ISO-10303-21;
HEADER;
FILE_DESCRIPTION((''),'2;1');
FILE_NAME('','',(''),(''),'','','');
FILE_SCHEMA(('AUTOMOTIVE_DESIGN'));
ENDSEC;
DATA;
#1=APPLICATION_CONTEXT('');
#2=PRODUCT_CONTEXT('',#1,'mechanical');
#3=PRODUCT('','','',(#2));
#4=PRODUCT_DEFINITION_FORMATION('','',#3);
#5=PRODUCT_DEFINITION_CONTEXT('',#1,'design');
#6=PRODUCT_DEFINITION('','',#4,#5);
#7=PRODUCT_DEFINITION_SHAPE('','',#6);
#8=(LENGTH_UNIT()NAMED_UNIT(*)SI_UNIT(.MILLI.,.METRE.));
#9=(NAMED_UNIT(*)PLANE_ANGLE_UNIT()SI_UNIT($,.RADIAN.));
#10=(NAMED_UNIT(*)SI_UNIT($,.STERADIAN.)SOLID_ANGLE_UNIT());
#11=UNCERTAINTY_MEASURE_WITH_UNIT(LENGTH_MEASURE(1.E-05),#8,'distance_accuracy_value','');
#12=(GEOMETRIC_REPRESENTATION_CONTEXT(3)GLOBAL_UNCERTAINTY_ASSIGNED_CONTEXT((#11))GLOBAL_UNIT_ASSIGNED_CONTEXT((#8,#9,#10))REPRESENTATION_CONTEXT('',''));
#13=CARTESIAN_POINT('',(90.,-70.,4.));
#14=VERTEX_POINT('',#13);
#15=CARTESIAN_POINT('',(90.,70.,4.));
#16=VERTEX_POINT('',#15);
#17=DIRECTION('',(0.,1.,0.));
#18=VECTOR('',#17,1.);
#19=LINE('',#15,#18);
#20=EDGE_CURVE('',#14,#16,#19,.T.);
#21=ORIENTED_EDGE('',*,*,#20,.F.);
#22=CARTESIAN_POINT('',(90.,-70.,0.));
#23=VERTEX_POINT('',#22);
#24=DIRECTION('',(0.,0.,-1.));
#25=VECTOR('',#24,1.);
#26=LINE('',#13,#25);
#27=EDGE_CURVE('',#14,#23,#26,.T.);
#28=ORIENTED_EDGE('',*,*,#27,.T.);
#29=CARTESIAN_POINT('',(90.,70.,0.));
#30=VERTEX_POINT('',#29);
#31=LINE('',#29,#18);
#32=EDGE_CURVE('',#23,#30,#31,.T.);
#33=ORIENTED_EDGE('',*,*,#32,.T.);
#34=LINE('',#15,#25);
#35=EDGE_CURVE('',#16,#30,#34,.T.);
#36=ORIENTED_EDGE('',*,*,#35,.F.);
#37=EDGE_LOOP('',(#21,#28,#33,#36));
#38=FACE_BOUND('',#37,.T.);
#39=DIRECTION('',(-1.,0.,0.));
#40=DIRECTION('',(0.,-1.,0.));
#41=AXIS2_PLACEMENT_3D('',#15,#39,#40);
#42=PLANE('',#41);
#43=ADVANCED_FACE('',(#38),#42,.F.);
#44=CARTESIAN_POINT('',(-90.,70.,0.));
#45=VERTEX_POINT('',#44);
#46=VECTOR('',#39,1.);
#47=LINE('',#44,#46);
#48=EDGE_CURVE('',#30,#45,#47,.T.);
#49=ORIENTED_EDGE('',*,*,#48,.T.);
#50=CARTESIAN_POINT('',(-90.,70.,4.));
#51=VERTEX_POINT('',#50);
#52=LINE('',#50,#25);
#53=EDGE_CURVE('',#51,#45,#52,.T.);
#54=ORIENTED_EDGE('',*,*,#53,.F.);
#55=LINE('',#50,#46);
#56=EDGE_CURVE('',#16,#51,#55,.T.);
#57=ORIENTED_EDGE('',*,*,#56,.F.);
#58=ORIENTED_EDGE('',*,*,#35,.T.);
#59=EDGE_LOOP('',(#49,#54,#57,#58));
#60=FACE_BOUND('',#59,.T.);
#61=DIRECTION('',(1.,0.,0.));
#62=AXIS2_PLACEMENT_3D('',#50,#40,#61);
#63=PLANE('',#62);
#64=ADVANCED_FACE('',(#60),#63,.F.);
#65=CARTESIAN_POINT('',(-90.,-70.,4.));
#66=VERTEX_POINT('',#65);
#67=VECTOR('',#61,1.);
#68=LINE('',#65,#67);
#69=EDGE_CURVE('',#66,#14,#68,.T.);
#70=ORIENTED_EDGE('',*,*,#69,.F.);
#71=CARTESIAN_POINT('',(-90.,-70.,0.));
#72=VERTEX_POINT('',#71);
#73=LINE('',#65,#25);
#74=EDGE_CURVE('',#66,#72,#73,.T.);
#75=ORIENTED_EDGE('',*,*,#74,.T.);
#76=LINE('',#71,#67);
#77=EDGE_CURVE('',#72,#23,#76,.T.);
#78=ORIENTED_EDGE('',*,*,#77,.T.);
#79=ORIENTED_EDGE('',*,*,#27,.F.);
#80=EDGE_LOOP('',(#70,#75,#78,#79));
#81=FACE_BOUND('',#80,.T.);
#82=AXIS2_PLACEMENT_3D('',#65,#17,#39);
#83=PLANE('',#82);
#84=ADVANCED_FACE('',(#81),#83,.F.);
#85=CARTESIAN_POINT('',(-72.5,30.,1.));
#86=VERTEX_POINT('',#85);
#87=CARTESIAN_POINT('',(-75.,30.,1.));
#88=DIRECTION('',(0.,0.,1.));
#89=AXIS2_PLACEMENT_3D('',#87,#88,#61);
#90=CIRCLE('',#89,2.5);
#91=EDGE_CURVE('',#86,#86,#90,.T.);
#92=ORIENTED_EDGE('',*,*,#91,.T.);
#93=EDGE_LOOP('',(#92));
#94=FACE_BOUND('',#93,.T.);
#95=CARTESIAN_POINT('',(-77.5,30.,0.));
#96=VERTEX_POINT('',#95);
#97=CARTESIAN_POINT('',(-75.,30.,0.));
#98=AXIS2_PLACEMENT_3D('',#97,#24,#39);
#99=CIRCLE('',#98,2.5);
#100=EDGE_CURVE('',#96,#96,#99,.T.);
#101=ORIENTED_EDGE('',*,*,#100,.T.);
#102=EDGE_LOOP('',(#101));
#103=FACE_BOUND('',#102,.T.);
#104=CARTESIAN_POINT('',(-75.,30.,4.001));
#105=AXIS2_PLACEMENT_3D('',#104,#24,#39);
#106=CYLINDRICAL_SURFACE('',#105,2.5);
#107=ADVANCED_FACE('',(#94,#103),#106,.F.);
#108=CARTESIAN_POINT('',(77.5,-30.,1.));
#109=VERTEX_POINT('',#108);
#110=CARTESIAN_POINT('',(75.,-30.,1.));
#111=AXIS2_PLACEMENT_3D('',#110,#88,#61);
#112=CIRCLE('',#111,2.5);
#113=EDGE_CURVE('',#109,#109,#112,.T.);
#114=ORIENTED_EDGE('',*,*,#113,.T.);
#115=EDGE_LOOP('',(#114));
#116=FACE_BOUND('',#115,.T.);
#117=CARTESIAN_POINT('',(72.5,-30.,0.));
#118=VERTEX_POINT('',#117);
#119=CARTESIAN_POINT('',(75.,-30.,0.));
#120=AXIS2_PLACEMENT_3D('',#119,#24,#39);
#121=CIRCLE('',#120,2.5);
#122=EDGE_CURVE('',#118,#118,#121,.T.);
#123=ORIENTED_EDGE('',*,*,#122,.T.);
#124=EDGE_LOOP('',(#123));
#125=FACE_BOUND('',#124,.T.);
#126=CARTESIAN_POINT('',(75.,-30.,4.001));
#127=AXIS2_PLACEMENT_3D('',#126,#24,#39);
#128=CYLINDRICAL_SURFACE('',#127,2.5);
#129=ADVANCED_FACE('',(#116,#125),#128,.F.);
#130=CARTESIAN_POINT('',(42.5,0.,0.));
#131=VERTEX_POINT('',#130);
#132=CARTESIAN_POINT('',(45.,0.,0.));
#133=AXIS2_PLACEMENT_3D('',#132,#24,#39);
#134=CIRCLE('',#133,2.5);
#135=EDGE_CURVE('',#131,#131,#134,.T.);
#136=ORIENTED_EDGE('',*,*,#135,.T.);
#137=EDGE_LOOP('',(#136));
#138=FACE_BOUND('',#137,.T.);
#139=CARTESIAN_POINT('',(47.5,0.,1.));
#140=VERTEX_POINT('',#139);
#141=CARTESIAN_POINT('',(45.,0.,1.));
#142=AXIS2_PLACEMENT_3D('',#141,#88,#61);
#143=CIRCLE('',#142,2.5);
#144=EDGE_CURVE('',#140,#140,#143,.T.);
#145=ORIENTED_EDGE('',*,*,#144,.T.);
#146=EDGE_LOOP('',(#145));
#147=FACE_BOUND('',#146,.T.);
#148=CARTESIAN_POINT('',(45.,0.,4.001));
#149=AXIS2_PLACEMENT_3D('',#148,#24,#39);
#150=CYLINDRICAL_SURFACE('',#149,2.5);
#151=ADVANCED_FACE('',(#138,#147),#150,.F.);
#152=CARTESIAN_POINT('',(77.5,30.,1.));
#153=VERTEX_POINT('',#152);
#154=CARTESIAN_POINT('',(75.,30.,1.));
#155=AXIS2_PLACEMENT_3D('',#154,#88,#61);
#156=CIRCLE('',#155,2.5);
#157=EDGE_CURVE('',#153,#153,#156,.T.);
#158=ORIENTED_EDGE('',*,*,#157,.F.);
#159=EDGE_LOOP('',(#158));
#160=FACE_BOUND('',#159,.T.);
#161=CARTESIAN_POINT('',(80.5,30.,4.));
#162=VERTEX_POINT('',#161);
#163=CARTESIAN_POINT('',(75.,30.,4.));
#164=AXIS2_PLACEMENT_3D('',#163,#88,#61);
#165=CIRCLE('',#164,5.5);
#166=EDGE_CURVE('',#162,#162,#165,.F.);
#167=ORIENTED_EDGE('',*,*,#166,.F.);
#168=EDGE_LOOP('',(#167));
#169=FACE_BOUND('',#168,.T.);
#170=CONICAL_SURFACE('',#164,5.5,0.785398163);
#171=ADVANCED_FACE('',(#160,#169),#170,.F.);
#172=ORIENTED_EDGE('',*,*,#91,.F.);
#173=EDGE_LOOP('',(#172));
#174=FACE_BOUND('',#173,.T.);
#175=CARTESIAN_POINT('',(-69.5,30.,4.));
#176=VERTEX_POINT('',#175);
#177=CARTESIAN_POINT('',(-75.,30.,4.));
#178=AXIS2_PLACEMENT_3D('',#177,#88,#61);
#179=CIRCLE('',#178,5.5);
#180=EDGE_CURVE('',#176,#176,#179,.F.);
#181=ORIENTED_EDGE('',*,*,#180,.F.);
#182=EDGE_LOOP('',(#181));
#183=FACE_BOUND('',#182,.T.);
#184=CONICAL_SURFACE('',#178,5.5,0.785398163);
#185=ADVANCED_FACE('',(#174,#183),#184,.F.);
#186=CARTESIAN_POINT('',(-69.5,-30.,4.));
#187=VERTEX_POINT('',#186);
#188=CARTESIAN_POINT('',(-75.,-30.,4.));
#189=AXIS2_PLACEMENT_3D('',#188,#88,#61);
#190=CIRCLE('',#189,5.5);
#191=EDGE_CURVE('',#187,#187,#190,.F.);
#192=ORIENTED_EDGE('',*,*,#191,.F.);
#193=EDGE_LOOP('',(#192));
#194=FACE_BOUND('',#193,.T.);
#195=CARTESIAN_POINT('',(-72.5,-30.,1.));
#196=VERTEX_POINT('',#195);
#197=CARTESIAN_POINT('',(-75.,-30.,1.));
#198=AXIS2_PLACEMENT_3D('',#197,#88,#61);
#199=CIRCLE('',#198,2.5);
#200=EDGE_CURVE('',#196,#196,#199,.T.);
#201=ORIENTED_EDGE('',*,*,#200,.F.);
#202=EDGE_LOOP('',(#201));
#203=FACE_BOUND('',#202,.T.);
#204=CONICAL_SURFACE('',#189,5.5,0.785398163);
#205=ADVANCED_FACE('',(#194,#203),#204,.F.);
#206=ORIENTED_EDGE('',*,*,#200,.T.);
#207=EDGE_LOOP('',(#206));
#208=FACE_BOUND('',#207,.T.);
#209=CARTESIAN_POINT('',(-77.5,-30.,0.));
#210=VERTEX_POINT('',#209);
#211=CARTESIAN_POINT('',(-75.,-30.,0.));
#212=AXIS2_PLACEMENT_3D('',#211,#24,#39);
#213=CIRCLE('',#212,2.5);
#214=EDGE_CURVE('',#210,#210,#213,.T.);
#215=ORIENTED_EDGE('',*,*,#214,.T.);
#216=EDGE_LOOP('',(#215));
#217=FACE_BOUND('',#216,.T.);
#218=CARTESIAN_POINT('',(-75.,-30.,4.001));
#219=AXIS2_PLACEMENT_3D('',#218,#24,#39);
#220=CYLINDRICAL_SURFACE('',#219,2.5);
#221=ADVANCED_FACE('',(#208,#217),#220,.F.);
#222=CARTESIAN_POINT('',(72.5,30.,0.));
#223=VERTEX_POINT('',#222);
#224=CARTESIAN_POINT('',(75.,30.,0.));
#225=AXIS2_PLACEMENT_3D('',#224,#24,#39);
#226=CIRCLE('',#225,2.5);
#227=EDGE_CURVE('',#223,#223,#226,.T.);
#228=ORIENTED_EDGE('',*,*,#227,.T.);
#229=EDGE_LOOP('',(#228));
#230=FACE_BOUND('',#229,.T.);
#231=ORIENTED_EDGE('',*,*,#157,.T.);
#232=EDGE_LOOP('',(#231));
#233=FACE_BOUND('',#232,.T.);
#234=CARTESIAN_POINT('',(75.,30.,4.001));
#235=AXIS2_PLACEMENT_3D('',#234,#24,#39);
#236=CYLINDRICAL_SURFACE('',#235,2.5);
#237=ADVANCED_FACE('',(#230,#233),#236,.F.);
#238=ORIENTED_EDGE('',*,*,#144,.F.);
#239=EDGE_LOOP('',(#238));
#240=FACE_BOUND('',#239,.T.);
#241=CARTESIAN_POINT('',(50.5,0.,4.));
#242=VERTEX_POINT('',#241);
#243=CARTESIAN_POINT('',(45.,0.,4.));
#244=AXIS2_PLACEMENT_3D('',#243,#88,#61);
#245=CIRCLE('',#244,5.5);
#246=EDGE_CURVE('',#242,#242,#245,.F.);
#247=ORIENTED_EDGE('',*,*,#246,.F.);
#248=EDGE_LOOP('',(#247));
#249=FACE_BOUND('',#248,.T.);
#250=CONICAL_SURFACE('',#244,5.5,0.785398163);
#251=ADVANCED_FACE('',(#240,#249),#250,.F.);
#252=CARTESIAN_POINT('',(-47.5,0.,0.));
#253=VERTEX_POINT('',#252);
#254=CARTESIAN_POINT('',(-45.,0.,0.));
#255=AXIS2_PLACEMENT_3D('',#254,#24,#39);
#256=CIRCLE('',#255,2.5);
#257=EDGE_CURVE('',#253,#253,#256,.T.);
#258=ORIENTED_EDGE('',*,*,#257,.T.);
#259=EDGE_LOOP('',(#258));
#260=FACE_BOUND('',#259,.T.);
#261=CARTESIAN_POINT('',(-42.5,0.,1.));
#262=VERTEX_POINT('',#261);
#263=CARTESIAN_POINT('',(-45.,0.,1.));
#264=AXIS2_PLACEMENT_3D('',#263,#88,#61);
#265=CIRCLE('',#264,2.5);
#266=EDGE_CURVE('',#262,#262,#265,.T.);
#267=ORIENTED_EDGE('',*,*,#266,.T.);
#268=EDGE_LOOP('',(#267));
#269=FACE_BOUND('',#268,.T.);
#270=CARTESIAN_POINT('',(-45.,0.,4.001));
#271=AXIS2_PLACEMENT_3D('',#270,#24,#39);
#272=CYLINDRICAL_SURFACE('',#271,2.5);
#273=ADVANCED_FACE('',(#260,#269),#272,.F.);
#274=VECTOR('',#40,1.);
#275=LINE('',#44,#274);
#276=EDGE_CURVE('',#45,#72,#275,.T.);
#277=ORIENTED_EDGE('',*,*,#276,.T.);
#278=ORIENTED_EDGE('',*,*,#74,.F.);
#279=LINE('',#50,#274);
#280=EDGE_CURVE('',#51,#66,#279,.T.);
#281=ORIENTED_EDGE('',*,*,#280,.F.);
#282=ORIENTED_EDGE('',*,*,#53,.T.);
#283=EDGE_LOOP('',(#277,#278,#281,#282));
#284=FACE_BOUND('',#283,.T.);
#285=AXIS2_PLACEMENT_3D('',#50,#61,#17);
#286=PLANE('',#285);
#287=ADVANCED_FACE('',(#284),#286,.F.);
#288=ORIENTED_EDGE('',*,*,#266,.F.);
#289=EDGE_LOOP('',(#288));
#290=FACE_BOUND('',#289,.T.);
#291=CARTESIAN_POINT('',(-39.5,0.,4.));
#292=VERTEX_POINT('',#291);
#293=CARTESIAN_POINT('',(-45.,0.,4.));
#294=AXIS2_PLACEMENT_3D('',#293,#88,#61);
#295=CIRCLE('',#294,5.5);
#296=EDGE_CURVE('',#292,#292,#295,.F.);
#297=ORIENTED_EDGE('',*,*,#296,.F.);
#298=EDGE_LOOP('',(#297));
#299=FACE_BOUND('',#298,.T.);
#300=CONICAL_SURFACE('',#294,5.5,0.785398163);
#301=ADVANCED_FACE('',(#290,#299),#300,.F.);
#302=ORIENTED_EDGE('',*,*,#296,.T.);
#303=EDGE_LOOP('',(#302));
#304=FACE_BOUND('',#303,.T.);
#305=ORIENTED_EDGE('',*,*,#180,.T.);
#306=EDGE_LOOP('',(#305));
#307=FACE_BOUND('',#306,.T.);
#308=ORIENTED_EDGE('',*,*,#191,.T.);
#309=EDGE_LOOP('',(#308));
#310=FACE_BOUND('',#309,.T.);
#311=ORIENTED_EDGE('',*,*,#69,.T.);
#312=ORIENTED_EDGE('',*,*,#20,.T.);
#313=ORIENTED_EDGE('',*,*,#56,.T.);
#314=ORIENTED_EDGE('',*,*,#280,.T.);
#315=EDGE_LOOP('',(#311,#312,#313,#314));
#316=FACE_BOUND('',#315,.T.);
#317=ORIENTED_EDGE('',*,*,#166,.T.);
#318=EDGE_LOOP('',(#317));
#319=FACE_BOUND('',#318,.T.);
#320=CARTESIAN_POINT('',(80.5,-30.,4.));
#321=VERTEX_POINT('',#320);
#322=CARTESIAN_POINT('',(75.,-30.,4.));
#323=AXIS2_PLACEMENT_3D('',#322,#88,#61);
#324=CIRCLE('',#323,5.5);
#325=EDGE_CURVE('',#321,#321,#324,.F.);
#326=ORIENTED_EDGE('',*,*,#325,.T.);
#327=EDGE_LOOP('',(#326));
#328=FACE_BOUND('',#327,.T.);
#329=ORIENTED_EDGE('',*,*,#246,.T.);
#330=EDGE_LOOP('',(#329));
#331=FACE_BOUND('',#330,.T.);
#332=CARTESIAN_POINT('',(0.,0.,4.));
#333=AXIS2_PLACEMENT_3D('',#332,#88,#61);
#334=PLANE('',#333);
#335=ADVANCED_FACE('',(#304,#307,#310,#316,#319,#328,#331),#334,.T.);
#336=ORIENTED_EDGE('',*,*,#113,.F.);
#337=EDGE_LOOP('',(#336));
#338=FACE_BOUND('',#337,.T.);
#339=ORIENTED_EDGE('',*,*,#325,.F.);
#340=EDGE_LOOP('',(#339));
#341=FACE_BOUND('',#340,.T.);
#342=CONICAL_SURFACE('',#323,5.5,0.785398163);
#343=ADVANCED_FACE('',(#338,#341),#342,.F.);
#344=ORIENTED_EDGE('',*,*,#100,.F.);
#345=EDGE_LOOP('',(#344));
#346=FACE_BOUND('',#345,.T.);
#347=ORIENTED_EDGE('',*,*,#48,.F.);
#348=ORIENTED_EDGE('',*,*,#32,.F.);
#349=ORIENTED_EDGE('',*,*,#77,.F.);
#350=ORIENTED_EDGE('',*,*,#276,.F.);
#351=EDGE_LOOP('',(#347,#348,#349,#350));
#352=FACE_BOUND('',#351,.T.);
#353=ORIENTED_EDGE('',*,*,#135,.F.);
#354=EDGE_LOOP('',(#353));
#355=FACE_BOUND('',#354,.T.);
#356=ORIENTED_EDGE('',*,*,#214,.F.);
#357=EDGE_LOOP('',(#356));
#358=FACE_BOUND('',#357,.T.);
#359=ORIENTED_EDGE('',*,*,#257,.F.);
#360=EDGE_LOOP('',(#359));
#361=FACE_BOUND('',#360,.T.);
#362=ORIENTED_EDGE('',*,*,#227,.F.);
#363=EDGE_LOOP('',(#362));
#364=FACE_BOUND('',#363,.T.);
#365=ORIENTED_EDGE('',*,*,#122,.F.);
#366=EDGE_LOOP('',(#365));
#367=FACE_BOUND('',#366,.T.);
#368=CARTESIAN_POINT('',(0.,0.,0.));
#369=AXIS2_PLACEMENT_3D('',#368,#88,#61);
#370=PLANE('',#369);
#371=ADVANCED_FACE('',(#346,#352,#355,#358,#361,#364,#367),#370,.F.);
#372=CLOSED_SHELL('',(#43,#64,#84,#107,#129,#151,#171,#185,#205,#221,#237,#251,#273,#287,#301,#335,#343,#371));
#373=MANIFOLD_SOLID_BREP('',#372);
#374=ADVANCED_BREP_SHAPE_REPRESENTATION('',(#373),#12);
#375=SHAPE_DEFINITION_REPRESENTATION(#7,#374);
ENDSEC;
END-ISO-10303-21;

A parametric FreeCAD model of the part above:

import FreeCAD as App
import Part
import Sketcher
from FreeCAD import Vector
Q = App.Units.Quantity


def edges_at(feature, points):
    """Names of the edges that pass closest to the given points."""
    edges = feature.Shape.Edges
    near = lambda p: min(range(len(edges)), key=lambda i: edges[i].distToShape(Part.Vertex(*p))[0])
    return sorted({f"Edge{near(p) + 1}" for p in points})

doc = App.newDocument("Part")
params = doc.addObject("Spreadsheet::Sheet", "Params")
for row, (alias, value) in enumerate([
    ("sketch1_width", "180 mm"),
    ("sketch1_height", "140 mm"),
    ("pad1_length", "4 mm"),
    ("sketch2_diameter", "5 mm"),
    ("sketch3_diameter", "5 mm"),
    ("sketch4_diameter", "5 mm"),
    ("sketch5_diameter", "5 mm"),
    ("sketch6_diameter", "5 mm"),
    ("sketch7_diameter", "5 mm"),
    ("chamfer_size", "3 mm"),
], start=1):
    params.set(f"A{row}", alias)
    params.set(f"B{row}", "=" + value)
    params.setAlias(f"B{row}", alias)

body = doc.addObject("PartDesign::Body", "Body")

# Sketch on XY plane
sketch1 = body.newObject("Sketcher::SketchObject", "Sketch")
sketch1.AttachmentSupport = (doc.getObject("XY_Plane"), [""])
sketch1.MapMode = "FlatFace"
sketch1.addGeometry([
    Part.LineSegment(Vector(-90, 70, 0), Vector(-90, -70, 0)),
    Part.LineSegment(Vector(-90, -70, 0), Vector(90, -70, 0)),
    Part.LineSegment(Vector(90, -70, 0), Vector(90, 70, 0)),
    Part.LineSegment(Vector(90, 70, 0), Vector(-90, 70, 0)),
], False)
sketch1.addConstraint([
    Sketcher.Constraint("Coincident", 0, 2, 1, 1),
    Sketcher.Constraint("Coincident", 1, 2, 2, 1),
    Sketcher.Constraint("Coincident", 2, 2, 3, 1),
    Sketcher.Constraint("Coincident", 3, 2, 0, 1),
    Sketcher.Constraint("Vertical", 0),
    Sketcher.Constraint("Horizontal", 1),
    Sketcher.Constraint("Vertical", 2),
    Sketcher.Constraint("Horizontal", 3),
    Sketcher.Constraint("Symmetric", 0, 2, 2, 2, -1, 1),
    Sketcher.Constraint("DistanceX", 1, 1, 1, 2, Q("180 mm")),
    Sketcher.Constraint("DistanceY", 0, 2, 0, 1, Q("140 mm")),
])
sketch1.setExpression("Constraints[9]", "Params.sketch1_width")
sketch1.setExpression("Constraints[10]", "Params.sketch1_height")
pad1 = body.newObject("PartDesign::Pad", "Pad")
pad1.Profile = sketch1
pad1.setExpression("Length", "Params.pad1_length")

# Sketch on XY plane
sketch2 = body.newObject("Sketcher::SketchObject", "Sketch001")
sketch2.AttachmentSupport = (doc.getObject("XY_Plane"), [""])
sketch2.MapMode = "FlatFace"
sketch2.addGeometry(Part.Circle(Vector(75, 30, 0), Vector(0, 0, 1), 2.5), False)
sketch2.addConstraint([
    Sketcher.Constraint("Diameter", 0, Q("5 mm")),
    Sketcher.Constraint("DistanceX", -1, 1, 0, 3, Q("75 mm")),
    Sketcher.Constraint("DistanceY", -1, 1, 0, 3, Q("30 mm")),
])
sketch2.setExpression("Constraints[0]", "Params.sketch2_diameter")
pocket1 = body.newObject("PartDesign::Pocket", "Pocket")
pocket1.Profile = sketch2
pocket1.Type = "UpToFirst"
pocket1.Reversed = True

# Sketch on XY plane
sketch3 = body.newObject("Sketcher::SketchObject", "Sketch002")
sketch3.AttachmentSupport = (doc.getObject("XY_Plane"), [""])
sketch3.MapMode = "FlatFace"
sketch3.addGeometry(Part.Circle(Vector(75, -30, 0), Vector(0, 0, 1), 2.5), False)
sketch3.addConstraint([
    Sketcher.Constraint("Diameter", 0, Q("5 mm")),
    Sketcher.Constraint("DistanceX", -1, 1, 0, 3, Q("75 mm")),
    Sketcher.Constraint("DistanceY", 0, 3, -1, 1, Q("30 mm")),
])
sketch3.setExpression("Constraints[0]", "Params.sketch3_diameter")
pocket2 = body.newObject("PartDesign::Pocket", "Pocket001")
pocket2.Profile = sketch3
pocket2.Type = "UpToFirst"
pocket2.Reversed = True

# Sketch on XY plane
sketch4 = body.newObject("Sketcher::SketchObject", "Sketch003")
sketch4.AttachmentSupport = (doc.getObject("XY_Plane"), [""])
sketch4.MapMode = "FlatFace"
sketch4.addGeometry(Part.Circle(Vector(-75, -30, 0), Vector(0, 0, 1), 2.5), False)
sketch4.addConstraint([
    Sketcher.Constraint("Diameter", 0, Q("5 mm")),
    Sketcher.Constraint("DistanceX", 0, 3, -1, 1, Q("75 mm")),
    Sketcher.Constraint("DistanceY", 0, 3, -1, 1, Q("30 mm")),
])
sketch4.setExpression("Constraints[0]", "Params.sketch4_diameter")
pocket3 = body.newObject("PartDesign::Pocket", "Pocket002")
pocket3.Profile = sketch4
pocket3.Type = "UpToFirst"
pocket3.Reversed = True

# Sketch on XY plane
sketch5 = body.newObject("Sketcher::SketchObject", "Sketch004")
sketch5.AttachmentSupport = (doc.getObject("XY_Plane"), [""])
sketch5.MapMode = "FlatFace"
sketch5.addGeometry(Part.Circle(Vector(-75, 30, 0), Vector(0, 0, 1), 2.5), False)
sketch5.addConstraint([
    Sketcher.Constraint("Diameter", 0, Q("5 mm")),
    Sketcher.Constraint("DistanceX", 0, 3, -1, 1, Q("75 mm")),
    Sketcher.Constraint("DistanceY", -1, 1, 0, 3, Q("30 mm")),
])
sketch5.setExpression("Constraints[0]", "Params.sketch5_diameter")
pocket4 = body.newObject("PartDesign::Pocket", "Pocket003")
pocket4.Profile = sketch5
pocket4.Type = "UpToFirst"
pocket4.Reversed = True

# Sketch on XY plane
sketch6 = body.newObject("Sketcher::SketchObject", "Sketch005")
sketch6.AttachmentSupport = (doc.getObject("XY_Plane"), [""])
sketch6.MapMode = "FlatFace"
sketch6.addGeometry(Part.Circle(Vector(-45, 0, 0), Vector(0, 0, 1), 2.5), False)
sketch6.addConstraint([
    Sketcher.Constraint("PointOnObject", 0, 3, -1),
    Sketcher.Constraint("Diameter", 0, Q("5 mm")),
    Sketcher.Constraint("DistanceX", 0, 3, -1, 1, Q("45 mm")),
])
sketch6.setExpression("Constraints[1]", "Params.sketch6_diameter")
pocket5 = body.newObject("PartDesign::Pocket", "Pocket004")
pocket5.Profile = sketch6
pocket5.Type = "UpToFirst"
pocket5.Reversed = True

# Sketch on XY plane
sketch7 = body.newObject("Sketcher::SketchObject", "Sketch006")
sketch7.AttachmentSupport = (doc.getObject("XY_Plane"), [""])
sketch7.MapMode = "FlatFace"
sketch7.addGeometry(Part.Circle(Vector(45, 0, 0), Vector(0, 0, 1), 2.5), False)
sketch7.addConstraint([
    Sketcher.Constraint("PointOnObject", 0, 3, -1),
    Sketcher.Constraint("Diameter", 0, Q("5 mm")),
    Sketcher.Constraint("DistanceX", -1, 1, 0, 3, Q("45 mm")),
])
sketch7.setExpression("Constraints[1]", "Params.sketch7_diameter")
pocket6 = body.newObject("PartDesign::Pocket", "Pocket005")
pocket6.Profile = sketch7
pocket6.Type = "UpToFirst"
pocket6.Reversed = True
doc.recompute()

chamfer = body.newObject("PartDesign::Chamfer", "Chamfer")
chamfer.Base = (pocket6, edges_at(pocket6, [
    (77.5, 30, 4),
    (77.5, -30, 4),
    (-72.5, -30, 4),
    (-72.5, 30, 4),
    (-42.5, 0, 4),
    (47.5, 0, 4),
]))
chamfer.setExpression("Size", "Params.chamfer_size")

doc.recompute()
